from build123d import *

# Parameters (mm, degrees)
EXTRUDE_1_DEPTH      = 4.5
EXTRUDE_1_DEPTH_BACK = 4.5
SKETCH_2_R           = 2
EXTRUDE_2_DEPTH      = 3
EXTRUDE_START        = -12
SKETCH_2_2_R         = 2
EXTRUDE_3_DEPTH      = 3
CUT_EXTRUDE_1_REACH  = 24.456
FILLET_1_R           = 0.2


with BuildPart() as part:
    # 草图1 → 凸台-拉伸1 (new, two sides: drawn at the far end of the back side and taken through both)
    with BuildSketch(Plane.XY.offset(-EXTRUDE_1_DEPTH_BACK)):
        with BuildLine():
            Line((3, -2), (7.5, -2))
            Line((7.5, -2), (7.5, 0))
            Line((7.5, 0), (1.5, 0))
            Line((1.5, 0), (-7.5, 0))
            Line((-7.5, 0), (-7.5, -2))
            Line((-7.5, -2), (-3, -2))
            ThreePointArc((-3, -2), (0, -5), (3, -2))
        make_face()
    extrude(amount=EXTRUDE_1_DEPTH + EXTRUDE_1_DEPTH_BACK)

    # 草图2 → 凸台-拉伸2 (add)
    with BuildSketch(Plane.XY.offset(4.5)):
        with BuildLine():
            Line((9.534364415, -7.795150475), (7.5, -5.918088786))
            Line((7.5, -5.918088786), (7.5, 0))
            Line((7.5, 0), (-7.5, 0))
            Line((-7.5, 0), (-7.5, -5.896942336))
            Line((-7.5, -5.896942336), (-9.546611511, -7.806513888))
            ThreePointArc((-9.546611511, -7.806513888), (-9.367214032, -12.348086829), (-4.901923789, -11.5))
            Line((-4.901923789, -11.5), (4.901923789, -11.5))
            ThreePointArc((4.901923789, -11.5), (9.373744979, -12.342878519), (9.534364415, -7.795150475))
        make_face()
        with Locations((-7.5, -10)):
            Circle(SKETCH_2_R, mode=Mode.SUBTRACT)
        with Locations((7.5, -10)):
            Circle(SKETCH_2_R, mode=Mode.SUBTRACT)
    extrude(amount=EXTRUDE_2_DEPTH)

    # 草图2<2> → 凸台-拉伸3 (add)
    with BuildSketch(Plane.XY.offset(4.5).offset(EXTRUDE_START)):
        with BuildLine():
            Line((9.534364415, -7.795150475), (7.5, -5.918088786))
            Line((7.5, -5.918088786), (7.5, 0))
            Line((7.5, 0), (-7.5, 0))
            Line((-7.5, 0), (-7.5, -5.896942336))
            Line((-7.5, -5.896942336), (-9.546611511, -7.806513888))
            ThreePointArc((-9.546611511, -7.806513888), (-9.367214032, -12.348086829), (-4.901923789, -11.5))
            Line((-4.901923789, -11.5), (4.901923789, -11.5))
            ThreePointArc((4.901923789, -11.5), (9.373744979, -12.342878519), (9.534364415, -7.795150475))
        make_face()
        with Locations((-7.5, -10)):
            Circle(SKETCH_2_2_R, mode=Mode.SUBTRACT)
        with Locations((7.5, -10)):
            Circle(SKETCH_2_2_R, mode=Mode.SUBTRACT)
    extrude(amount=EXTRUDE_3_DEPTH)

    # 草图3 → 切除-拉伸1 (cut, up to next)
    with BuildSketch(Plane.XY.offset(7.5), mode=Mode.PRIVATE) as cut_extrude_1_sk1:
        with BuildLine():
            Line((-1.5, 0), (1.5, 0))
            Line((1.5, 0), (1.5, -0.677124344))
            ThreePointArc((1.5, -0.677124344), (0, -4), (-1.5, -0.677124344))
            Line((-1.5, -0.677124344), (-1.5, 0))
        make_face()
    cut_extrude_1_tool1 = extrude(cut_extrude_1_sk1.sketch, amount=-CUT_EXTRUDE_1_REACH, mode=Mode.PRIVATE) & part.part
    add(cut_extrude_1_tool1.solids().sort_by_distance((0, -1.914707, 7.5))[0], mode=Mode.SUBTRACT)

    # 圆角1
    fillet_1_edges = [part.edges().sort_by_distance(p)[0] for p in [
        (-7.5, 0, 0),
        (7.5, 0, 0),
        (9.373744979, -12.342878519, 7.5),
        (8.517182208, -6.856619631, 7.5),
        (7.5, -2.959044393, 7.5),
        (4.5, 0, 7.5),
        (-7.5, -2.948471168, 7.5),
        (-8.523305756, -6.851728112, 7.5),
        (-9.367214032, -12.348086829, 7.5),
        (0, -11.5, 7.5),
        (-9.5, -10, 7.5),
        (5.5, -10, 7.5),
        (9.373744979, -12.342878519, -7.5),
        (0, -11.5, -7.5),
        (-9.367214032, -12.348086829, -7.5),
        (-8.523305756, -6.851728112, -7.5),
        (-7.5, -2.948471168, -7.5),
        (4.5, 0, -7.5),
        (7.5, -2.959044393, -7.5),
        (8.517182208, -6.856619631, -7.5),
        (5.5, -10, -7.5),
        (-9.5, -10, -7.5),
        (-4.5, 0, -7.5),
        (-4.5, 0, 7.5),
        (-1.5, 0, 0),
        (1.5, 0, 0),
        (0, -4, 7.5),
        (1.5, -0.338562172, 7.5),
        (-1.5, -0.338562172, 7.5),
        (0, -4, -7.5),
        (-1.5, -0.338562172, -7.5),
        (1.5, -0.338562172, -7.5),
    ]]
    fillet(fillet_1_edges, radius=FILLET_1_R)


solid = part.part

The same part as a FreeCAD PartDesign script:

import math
import FreeCAD as App
import Part
import Sketcher

V = App.Vector
Q = App.Units.Quantity


def edges_at(feature, points):
    """Names of the edges that pass closest to the given points."""
    edges = feature.Shape.Edges
    near = lambda p: min(range(len(edges)), key=lambda i: edges[i].distToShape(Part.Vertex(*p))[0])
    return sorted({f"Edge{near(p) + 1}" for p in points})

doc = App.newDocument("Part")
body = doc.addObject("PartDesign::Body", "Body")

# Sketch on XY plane
sketch1 = body.newObject("Sketcher::SketchObject", "Sketch")
sketch1.AttachmentSupport = (doc.getObject("XY_Plane"), [""])
sketch1.MapMode = "FlatFace"
sketch1.addGeometry([
    Part.LineSegment(V(3, -2, 0), V(7.5, -2, 0)),  # 0
    Part.LineSegment(V(7.5, -2, 0), V(7.5, 0, 0)),  # 1
    Part.LineSegment(V(7.5, 0, 0), V(-7.5, 0, 0)),  # 2
    Part.LineSegment(V(-7.5, 0, 0), V(-7.5, -2, 0)),  # 3
    Part.LineSegment(V(-7.5, -2, 0), V(-3, -2, 0)),  # 4
    Part.ArcOfCircle(Part.Circle(V(0, -2, 0), V(0, 0, 1), 3), math.radians(180), math.radians(360)),  # 5
], False)
sketch1.addConstraint([
    Sketcher.Constraint("Coincident", 0, 2, 1, 1),
    Sketcher.Constraint("Coincident", 1, 2, 2, 1),
    Sketcher.Constraint("Coincident", 2, 2, 3, 1),
    Sketcher.Constraint("Coincident", 3, 2, 4, 1),
    Sketcher.Constraint("Coincident", 4, 2, 5, 1),
    Sketcher.Constraint("Coincident", 5, 2, 0, 1),
    Sketcher.Constraint("Horizontal", 0),
    Sketcher.Constraint("Vertical", 1),
    Sketcher.Constraint("Horizontal", 2),
    Sketcher.Constraint("Vertical", 3),
    Sketcher.Constraint("Horizontal", 4),
    Sketcher.Constraint("Symmetric", 1, 2, 2, 2, -1, 1),
    Sketcher.Constraint("Symmetric", 4, 2, 5, 2, -2),
    Sketcher.Constraint("Horizontal", 5, 3, 0, 2),
    Sketcher.Constraint("Radius", 5, Q("3 mm")),
    Sketcher.Constraint("DistanceX", 2, 2, 2, 1, Q("15 mm")),
    Sketcher.Constraint("DistanceY", 1, 1, 1, 2, Q("2 mm")),
])
pad1 = body.newObject("PartDesign::Pad", "Pad")
pad1.Profile = sketch1
pad1.Type = "TwoLengths"
pad1.Length = 4.5
pad1.Length2 = 4.5

# Sketch on XY plane
sketch2 = body.newObject("Sketcher::SketchObject", "Sketch001")
sketch2.AttachmentSupport = (doc.getObject("XY_Plane"), [""])
sketch2.MapMode = "FlatFace"
sketch2.AttachmentOffset = App.Placement(V(0, 0, 4.5), App.Rotation())
sketch2.addGeometry([
    Part.LineSegment(V(9.5, -7.8, 0), V(7.5, -5.9, 0)),  # 0
    Part.LineSegment(V(7.5, -5.9, 0), V(7.5, 0, 0)),  # 1
    Part.LineSegment(V(7.5, 0, 0), V(-7.5, 0, 0)),  # 2
    Part.LineSegment(V(-7.5, 0, 0), V(-7.5, -5.9, 0)),  # 3
    Part.LineSegment(V(-7.5, -5.9, 0), V(-9.5, -7.8, 0)),  # 4
    Part.ArcOfCircle(Part.Circle(V(-7.5, -10, 0), V(0, 0, 1), 3), math.radians(133), math.radians(330)),  # 5
    Part.LineSegment(V(-4.9, -11.5, 0), V(4.9, -11.5, 0)),  # 6
    Part.ArcOfCircle(Part.Circle(V(7.5, -10, 0), V(0, 0, 1), 3), math.radians(-150), math.radians(47)),  # 7
    Part.Circle(V(-7.5, -10, 0), V(0, 0, 1), 2),  # 8
    Part.Circle(V(7.5, -10, 0), V(0, 0, 1), 2),  # 9
], False)
sketch2.addConstraint([
    Sketcher.Constraint("Coincident", 0, 2, 1, 1),
    Sketcher.Constraint("Coincident", 1, 2, 2, 1),
    Sketcher.Constraint("Coincident", 2, 2, 3, 1),
    Sketcher.Constraint("Coincident", 3, 2, 4, 1),
    Sketcher.Constraint("Tangent", 4, 2, 5, 1),
    Sketcher.Constraint("Coincident", 5, 2, 6, 1),
    Sketcher.Constraint("Coincident", 6, 2, 7, 1),
    Sketcher.Constraint("Tangent", 7, 2, 0, 1),
    Sketcher.Constraint("Vertical", 1),
    Sketcher.Constraint("Horizontal", 2),
    Sketcher.Constraint("Vertical", 3),
    Sketcher.Constraint("Horizontal", 6),
    Sketcher.Constraint("Coincident", 8, 3, 5, 3),
    Sketcher.Constraint("Coincident", 9, 3, 7, 3),
    Sketcher.Constraint("Equal", 5, 7),
    Sketcher.Constraint("Equal", 8, 9),
    Sketcher.Constraint("Symmetric", 1, 2, 2, 2, -1, 1),
    Sketcher.Constraint("Symmetric", 5, 3, 7, 3, -2),
    Sketcher.Constraint("Vertical", 9, 3, 0, 2),
    Sketcher.Constraint("Diameter", 8, Q("4 mm")),
    Sketcher.Constraint("Radius", 5, Q("3 mm")),
    Sketcher.Constraint("DistanceX", 2, 2, 2, 1, Q("15 mm")),
    Sketcher.Constraint("DistanceY", 5, 3, -1, 1, Q("10 mm")),
    Sketcher.Constraint("DistanceY", 5, 2, -1, 1, Q("11.5 mm")),
    Sketcher.Constraint("DistanceY", 1, 1, 1, 2, Q("5.918089 mm")),
    Sketcher.Constraint("Distance", 4, Q("2.799122 mm")),
])
pad2 = body.newObject("PartDesign::Pad", "Pad001")
pad2.Profile = sketch2
pad2.Length = 3

# Sketch on XY plane
sketch3 = body.newObject("Sketcher::SketchObject", "Sketch002")
sketch3.AttachmentSupport = (doc.getObject("XY_Plane"), [""])
sketch3.MapMode = "FlatFace"
sketch3.AttachmentOffset = App.Placement(V(0, 0, -7.5), App.Rotation())
sketch3.addGeometry([
    Part.LineSegment(V(9.5, -7.8, 0), V(7.5, -5.9, 0)),  # 0
    Part.LineSegment(V(7.5, -5.9, 0), V(7.5, 0, 0)),  # 1
    Part.LineSegment(V(7.5, 0, 0), V(-7.5, 0, 0)),  # 2
    Part.LineSegment(V(-7.5, 0, 0), V(-7.5, -5.9, 0)),  # 3
    Part.LineSegment(V(-7.5, -5.9, 0), V(-9.5, -7.8, 0)),  # 4
    Part.ArcOfCircle(Part.Circle(V(-7.5, -10, 0), V(0, 0, 1), 3), math.radians(133), math.radians(330)),  # 5
    Part.LineSegment(V(-4.9, -11.5, 0), V(4.9, -11.5, 0)),  # 6
    Part.ArcOfCircle(Part.Circle(V(7.5, -10, 0), V(0, 0, 1), 3), math.radians(-150), math.radians(47)),  # 7
    Part.Circle(V(-7.5, -10, 0), V(0, 0, 1), 2),  # 8
    Part.Circle(V(7.5, -10, 0), V(0, 0, 1), 2),  # 9
], False)
sketch3.addConstraint([
    Sketcher.Constraint("Coincident", 0, 2, 1, 1),
    Sketcher.Constraint("Coincident", 1, 2, 2, 1),
    Sketcher.Constraint("Coincident", 2, 2, 3, 1),
    Sketcher.Constraint("Coincident", 3, 2, 4, 1),
    Sketcher.Constraint("Tangent", 4, 2, 5, 1),
    Sketcher.Constraint("Coincident", 5, 2, 6, 1),
    Sketcher.Constraint("Coincident", 6, 2, 7, 1),
    Sketcher.Constraint("Tangent", 7, 2, 0, 1),
    Sketcher.Constraint("Vertical", 1),
    Sketcher.Constraint("Horizontal", 2),
    Sketcher.Constraint("Vertical", 3),
    Sketcher.Constraint("Horizontal", 6),
    Sketcher.Constraint("Coincident", 8, 3, 5, 3),
    Sketcher.Constraint("Coincident", 9, 3, 7, 3),
    Sketcher.Constraint("Equal", 5, 7),
    Sketcher.Constraint("Equal", 8, 9),
    Sketcher.Constraint("Symmetric", 1, 2, 2, 2, -1, 1),
    Sketcher.Constraint("Symmetric", 5, 3, 7, 3, -2),
    Sketcher.Constraint("Vertical", 9, 3, 0, 2),
    Sketcher.Constraint("Diameter", 8, Q("4 mm")),
    Sketcher.Constraint("Radius", 5, Q("3 mm")),
    Sketcher.Constraint("DistanceX", 2, 2, 2, 1, Q("15 mm")),
    Sketcher.Constraint("DistanceY", 5, 3, -1, 1, Q("10 mm")),
    Sketcher.Constraint("DistanceY", 5, 2, -1, 1, Q("11.5 mm")),
    Sketcher.Constraint("DistanceY", 1, 1, 1, 2, Q("5.918089 mm")),
    Sketcher.Constraint("Distance", 4, Q("2.799122 mm")),
])
pad3 = body.newObject("PartDesign::Pad", "Pad002")
pad3.Profile = sketch3
pad3.Length = 3

# Sketch on XY plane
sketch4 = body.newObject("Sketcher::SketchObject", "Sketch003")
sketch4.AttachmentSupport = (doc.getObject("XY_Plane"), [""])
sketch4.MapMode = "FlatFace"
sketch4.AttachmentOffset = App.Placement(V(0, 0, 7.5), App.Rotation())
sketch4.addGeometry([
    Part.LineSegment(V(1.5, 0, 0), V(-1.5, 0, 0)),
    Part.LineSegment(V(-1.5, 0, 0), V(-1.5, -0.7, 0)),
    Part.ArcOfCircle(Part.Circle(V(0, -2, 0), V(0, 0, 1), 2), math.radians(139), math.radians(401)),
    Part.LineSegment(V(1.5, -0.7, 0), V(1.5, 0, 0)),
], False)
sketch4.addConstraint([
    Sketcher.Constraint("Coincident", 0, 2, 1, 1),
    Sketcher.Constraint("Coincident", 1, 2, 2, 1),
    Sketcher.Constraint("Coincident", 2, 2, 3, 1),
    Sketcher.Constraint("Coincident", 3, 2, 0, 1),
    Sketcher.Constraint("Horizontal", 0),
    Sketcher.Constraint("Vertical", 1),
    Sketcher.Constraint("Vertical", 3),
    Sketcher.Constraint("Symmetric", 0, 2, 3, 2, -1, 1),
    Sketcher.Constraint("PointOnObject", 2, 3, -2),
    Sketcher.Constraint("Radius", 2, Q("2 mm")),
    Sketcher.Constraint("DistanceX", 0, 2, 0, 1, Q("3 mm")),
    Sketcher.Constraint("DistanceY", 2, 3, -1, 1, Q("2 mm")),
])
pocket1 = body.newObject("PartDesign::Pocket", "Pocket")
pocket1.Profile = sketch4
pocket1.Type = "UpToFirst"
doc.recompute()

fillet = body.newObject("PartDesign::Fillet", "Fillet")
fillet.Base = (pocket1, edges_at(pocket1, [
    (-7.5, 0, 0),
    (7.5, 0, 0),
    (9.374, -12.343, 7.5),
    (8.517, -6.857, 7.5),
    (7.5, -2.959, 7.5),
    (4.5, 0, 7.5),
    (-7.5, -2.948, 7.5),
    (-8.523, -6.852, 7.5),
    (-9.367, -12.348, 7.5),
    (0, -11.5, 7.5),
    (-9.5, -10, 7.5),
    (5.5, -10, 7.5),
    (9.374, -12.343, -7.5),
    (0, -11.5, -7.5),
    (-9.367, -12.348, -7.5),
    (-8.523, -6.852, -7.5),
    (-7.5, -2.948, -7.5),
    (4.5, 0, -7.5),
    (7.5, -2.959, -7.5),
    (8.517, -6.857, -7.5),
    (5.5, -10, -7.5),
    (-9.5, -10, -7.5),
    (-4.5, 0, -7.5),
    (-4.5, 0, 7.5),
    (-1.5, 0, 0),
    (1.5, 0, 0),
    (0, -4, 7.5),
    (1.5, -0.339, 7.5),
    (-1.5, -0.339, 7.5),
    (0, -4, -7.5),
    (-1.5, -0.339, -7.5),
    (1.5, -0.339, -7.5),
]))
fillet.Radius = 0.2

doc.recompute()
